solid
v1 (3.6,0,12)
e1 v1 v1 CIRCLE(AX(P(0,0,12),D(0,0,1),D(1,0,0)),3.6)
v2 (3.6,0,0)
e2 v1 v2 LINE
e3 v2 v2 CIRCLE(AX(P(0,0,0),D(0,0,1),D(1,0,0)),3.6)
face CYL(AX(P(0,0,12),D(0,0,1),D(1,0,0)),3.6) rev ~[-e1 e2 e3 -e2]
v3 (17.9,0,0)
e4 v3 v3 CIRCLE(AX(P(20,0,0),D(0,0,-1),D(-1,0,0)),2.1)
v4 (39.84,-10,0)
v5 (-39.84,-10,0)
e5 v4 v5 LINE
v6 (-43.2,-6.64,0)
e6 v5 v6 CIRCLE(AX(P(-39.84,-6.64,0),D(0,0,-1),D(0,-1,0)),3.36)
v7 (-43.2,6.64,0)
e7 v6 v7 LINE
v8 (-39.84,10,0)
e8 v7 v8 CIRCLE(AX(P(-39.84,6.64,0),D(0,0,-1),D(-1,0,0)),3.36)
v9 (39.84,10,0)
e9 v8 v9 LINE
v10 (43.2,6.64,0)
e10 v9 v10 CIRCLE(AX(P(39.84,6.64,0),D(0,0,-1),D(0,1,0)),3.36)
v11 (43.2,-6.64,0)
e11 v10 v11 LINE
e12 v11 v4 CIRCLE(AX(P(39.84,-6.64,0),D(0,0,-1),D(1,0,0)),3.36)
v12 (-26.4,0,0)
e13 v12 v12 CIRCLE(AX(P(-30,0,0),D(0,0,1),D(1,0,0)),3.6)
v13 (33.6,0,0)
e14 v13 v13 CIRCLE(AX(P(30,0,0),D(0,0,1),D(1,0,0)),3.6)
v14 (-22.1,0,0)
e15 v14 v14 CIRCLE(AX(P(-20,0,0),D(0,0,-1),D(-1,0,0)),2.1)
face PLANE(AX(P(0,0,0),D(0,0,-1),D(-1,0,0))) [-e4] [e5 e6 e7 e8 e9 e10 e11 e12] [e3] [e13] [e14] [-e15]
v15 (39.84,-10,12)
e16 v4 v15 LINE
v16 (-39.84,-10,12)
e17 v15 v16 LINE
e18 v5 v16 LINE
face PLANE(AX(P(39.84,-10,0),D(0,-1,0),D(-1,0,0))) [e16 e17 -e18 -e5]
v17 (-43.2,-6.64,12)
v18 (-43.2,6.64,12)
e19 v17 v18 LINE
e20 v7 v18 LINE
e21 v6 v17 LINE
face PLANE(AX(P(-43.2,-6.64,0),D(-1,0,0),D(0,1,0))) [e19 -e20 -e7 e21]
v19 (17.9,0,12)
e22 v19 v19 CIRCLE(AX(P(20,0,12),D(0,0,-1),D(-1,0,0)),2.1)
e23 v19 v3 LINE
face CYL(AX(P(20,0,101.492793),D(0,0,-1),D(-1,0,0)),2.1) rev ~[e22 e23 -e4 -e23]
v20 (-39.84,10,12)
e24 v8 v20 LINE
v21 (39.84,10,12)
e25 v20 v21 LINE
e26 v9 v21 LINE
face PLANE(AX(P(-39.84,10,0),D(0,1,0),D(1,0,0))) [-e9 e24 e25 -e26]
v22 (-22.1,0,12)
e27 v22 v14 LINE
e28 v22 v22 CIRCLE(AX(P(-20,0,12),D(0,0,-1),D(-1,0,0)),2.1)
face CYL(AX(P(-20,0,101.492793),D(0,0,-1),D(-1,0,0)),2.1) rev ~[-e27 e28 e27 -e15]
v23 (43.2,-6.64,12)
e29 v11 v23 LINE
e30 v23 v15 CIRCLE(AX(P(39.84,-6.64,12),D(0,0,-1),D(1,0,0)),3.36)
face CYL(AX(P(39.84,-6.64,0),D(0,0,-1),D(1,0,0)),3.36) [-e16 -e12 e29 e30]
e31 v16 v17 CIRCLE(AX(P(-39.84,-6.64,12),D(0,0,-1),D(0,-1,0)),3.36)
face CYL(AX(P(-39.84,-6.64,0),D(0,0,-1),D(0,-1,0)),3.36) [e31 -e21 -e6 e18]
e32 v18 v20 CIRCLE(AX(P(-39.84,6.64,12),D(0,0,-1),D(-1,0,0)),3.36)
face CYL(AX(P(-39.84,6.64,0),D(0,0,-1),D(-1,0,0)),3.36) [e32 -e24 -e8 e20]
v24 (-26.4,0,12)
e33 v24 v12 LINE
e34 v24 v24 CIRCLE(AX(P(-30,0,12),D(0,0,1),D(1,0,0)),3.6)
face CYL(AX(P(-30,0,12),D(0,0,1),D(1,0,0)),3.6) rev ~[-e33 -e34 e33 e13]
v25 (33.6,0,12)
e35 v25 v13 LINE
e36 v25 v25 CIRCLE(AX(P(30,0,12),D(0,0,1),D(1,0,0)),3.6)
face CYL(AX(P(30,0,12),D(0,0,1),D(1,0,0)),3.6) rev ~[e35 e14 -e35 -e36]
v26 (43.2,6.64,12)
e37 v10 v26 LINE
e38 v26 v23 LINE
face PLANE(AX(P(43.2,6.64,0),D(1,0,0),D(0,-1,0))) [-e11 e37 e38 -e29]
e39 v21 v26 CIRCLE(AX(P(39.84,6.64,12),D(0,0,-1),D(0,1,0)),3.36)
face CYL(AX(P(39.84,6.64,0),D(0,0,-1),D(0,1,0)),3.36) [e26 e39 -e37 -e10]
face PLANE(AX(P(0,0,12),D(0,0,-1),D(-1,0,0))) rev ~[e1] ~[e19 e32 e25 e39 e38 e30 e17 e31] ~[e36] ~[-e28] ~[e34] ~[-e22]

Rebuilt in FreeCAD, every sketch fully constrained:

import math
import FreeCAD as App
import Part
import Sketcher

V = App.Vector
Q = App.Units.Quantity

doc = App.newDocument("Part")
body = doc.addObject("PartDesign::Body", "Body")

sketch1 = body.newObject("Sketcher::SketchObject", "Sketch")
sketch1.AttachmentSupport = (doc.getObject("XY_Plane"), [""])
sketch1.MapMode = "FlatFace"
sketch1.addGeometry(Part.LineSegment(V(-39.8, -10, 0), V(39.8, -10, 0)), False)
sketch1.addGeometry(Part.ArcOfCircle(Part.Circle(V(39.8, -6.6, 0), V(0, 0, 1), 3.4), math.radians(-90), math.radians(0)), False)
sketch1.addGeometry(Part.LineSegment(V(43.2, -6.6, 0), V(43.2, 6.6, 0)), False)
sketch1.addGeometry(Part.ArcOfCircle(Part.Circle(V(39.8, 6.6, 0), V(0, 0, 1), 3.4), math.radians(0), math.radians(90)), False)
sketch1.addGeometry(Part.LineSegment(V(39.8, 10, 0), V(-39.8, 10, 0)), False)
sketch1.addGeometry(Part.ArcOfCircle(Part.Circle(V(-39.8, 6.6, 0), V(0, 0, 1), 3.4), math.radians(90), math.radians(180)), False)
sketch1.addGeometry(Part.LineSegment(V(-43.2, 6.6, 0), V(-43.2, -6.6, 0)), False)
sketch1.addGeometry(Part.ArcOfCircle(Part.Circle(V(-39.8, -6.6, 0), V(0, 0, 1), 3.4), math.radians(180), math.radians(270)), False)
sketch1.addConstraint(Sketcher.Constraint("Tangent", 0, 2, 1, 1))
sketch1.addConstraint(Sketcher.Constraint("Tangent", 1, 2, 2, 1))
sketch1.addConstraint(Sketcher.Constraint("Tangent", 2, 2, 3, 1))
sketch1.addConstraint(Sketcher.Constraint("Tangent", 3, 2, 4, 1))
sketch1.addConstraint(Sketcher.Constraint("Tangent", 4, 2, 5, 1))
sketch1.addConstraint(Sketcher.Constraint("Tangent", 5, 2, 6, 1))
sketch1.addConstraint(Sketcher.Constraint("Tangent", 6, 2, 7, 1))
sketch1.addConstraint(Sketcher.Constraint("Tangent", 7, 2, 0, 1))
sketch1.addConstraint(Sketcher.Constraint("Horizontal", 0))
sketch1.addConstraint(Sketcher.Constraint("Vertical", 2))
sketch1.addConstraint(Sketcher.Constraint("Horizontal", 4))
sketch1.addConstraint(Sketcher.Constraint("Vertical", 6))
sketch1.addConstraint(Sketcher.Constraint("Equal", 1, 3))
sketch1.addConstraint(Sketcher.Constraint("Equal", 3, 5))
sketch1.addConstraint(Sketcher.Constraint("Equal", 5, 7))
sketch1.addConstraint(Sketcher.Constraint("Symmetric", 1, 3, 5, 3, -1, 1))
sketch1.addConstraint(Sketcher.Constraint("Radius", 1, Q("3.36 mm")))
sketch1.addConstraint(Sketcher.Constraint("DistanceY", 0, 2, -1, 1, Q("10 mm")))
sketch1.addConstraint(Sketcher.Constraint("DistanceX", 0, 1, 0, 2, Q("79.68 mm")))
pad1 = body.newObject("PartDesign::Pad", "Pad")
pad1.Profile = sketch1
pad1.Length = 12

sketch2 = body.newObject("Sketcher::SketchObject", "Sketch001")
sketch2.AttachmentSupport = (doc.getObject("XY_Plane"), [""])
sketch2.MapMode = "FlatFace"
sketch2.AttachmentOffset = App.Placement(V(0, 0, 12), App.Rotation())
sketch2.addGeometry(Part.Circle(V(-30, 0, 0), V(0, 0, 1), 3.6), False)
sketch2.addGeometry(Part.Circle(V(30, 0, 0), V(0, 0, 1), 3.6), False)
sketch2.addGeometry(Part.Circle(V(0, 0, 0), V(0, 0, 1), 3.6), False)
sketch2.addConstraint(Sketcher.Constraint("Coincident", 2, 3, -1, 1))
sketch2.addConstraint(Sketcher.Constraint("Equal", 0, 1))
sketch2.addConstraint(Sketcher.Constraint("Equal", 1, 2))
sketch2.addConstraint(Sketcher.Constraint("Symmetric", 0, 3, 1, 3, -1, 1))
sketch2.addConstraint(Sketcher.Constraint("PointOnObject", 0, 3, -1))
sketch2.addConstraint(Sketcher.Constraint("Diameter", 0, Q("7.2 mm")))
sketch2.addConstraint(Sketcher.Constraint("DistanceX", 0, 3, -1, 1, Q("30 mm")))
pocket1 = body.newObject("PartDesign::Pocket", "Pocket")
pocket1.Profile = sketch2
pocket1.Type = "ThroughAll"

sketch3 = body.newObject("Sketcher::SketchObject", "Sketch002")
sketch3.AttachmentSupport = (doc.getObject("XY_Plane"), [""])
sketch3.MapMode = "FlatFace"
sketch3.AttachmentOffset = App.Placement(V(0, 0, 12), App.Rotation())
sketch3.addGeometry(Part.Circle(V(-20, 0, 0), V(0, 0, 1), 2.1), False)
sketch3.addGeometry(Part.Circle(V(20, 0, 0), V(0, 0, 1), 2.1), False)
sketch3.addConstraint(Sketcher.Constraint("Equal", 0, 1))
sketch3.addConstraint(Sketcher.Constraint("Symmetric", 0, 3, 1, 3, -1, 1))
sketch3.addConstraint(Sketcher.Constraint("PointOnObject", 0, 3, -1))
sketch3.addConstraint(Sketcher.Constraint("Diameter", 0, Q("4.2 mm")))
sketch3.addConstraint(Sketcher.Constraint("DistanceX", 0, 3, -1, 1, Q("20 mm")))
doc.recompute()
hole = body.newObject("PartDesign::Hole", "Hole")
hole.Profile = sketch3
hole.ThreadType = "None"
hole.Diameter = 4.2
hole.DepthType = "ThroughAll"

doc.recompute()
